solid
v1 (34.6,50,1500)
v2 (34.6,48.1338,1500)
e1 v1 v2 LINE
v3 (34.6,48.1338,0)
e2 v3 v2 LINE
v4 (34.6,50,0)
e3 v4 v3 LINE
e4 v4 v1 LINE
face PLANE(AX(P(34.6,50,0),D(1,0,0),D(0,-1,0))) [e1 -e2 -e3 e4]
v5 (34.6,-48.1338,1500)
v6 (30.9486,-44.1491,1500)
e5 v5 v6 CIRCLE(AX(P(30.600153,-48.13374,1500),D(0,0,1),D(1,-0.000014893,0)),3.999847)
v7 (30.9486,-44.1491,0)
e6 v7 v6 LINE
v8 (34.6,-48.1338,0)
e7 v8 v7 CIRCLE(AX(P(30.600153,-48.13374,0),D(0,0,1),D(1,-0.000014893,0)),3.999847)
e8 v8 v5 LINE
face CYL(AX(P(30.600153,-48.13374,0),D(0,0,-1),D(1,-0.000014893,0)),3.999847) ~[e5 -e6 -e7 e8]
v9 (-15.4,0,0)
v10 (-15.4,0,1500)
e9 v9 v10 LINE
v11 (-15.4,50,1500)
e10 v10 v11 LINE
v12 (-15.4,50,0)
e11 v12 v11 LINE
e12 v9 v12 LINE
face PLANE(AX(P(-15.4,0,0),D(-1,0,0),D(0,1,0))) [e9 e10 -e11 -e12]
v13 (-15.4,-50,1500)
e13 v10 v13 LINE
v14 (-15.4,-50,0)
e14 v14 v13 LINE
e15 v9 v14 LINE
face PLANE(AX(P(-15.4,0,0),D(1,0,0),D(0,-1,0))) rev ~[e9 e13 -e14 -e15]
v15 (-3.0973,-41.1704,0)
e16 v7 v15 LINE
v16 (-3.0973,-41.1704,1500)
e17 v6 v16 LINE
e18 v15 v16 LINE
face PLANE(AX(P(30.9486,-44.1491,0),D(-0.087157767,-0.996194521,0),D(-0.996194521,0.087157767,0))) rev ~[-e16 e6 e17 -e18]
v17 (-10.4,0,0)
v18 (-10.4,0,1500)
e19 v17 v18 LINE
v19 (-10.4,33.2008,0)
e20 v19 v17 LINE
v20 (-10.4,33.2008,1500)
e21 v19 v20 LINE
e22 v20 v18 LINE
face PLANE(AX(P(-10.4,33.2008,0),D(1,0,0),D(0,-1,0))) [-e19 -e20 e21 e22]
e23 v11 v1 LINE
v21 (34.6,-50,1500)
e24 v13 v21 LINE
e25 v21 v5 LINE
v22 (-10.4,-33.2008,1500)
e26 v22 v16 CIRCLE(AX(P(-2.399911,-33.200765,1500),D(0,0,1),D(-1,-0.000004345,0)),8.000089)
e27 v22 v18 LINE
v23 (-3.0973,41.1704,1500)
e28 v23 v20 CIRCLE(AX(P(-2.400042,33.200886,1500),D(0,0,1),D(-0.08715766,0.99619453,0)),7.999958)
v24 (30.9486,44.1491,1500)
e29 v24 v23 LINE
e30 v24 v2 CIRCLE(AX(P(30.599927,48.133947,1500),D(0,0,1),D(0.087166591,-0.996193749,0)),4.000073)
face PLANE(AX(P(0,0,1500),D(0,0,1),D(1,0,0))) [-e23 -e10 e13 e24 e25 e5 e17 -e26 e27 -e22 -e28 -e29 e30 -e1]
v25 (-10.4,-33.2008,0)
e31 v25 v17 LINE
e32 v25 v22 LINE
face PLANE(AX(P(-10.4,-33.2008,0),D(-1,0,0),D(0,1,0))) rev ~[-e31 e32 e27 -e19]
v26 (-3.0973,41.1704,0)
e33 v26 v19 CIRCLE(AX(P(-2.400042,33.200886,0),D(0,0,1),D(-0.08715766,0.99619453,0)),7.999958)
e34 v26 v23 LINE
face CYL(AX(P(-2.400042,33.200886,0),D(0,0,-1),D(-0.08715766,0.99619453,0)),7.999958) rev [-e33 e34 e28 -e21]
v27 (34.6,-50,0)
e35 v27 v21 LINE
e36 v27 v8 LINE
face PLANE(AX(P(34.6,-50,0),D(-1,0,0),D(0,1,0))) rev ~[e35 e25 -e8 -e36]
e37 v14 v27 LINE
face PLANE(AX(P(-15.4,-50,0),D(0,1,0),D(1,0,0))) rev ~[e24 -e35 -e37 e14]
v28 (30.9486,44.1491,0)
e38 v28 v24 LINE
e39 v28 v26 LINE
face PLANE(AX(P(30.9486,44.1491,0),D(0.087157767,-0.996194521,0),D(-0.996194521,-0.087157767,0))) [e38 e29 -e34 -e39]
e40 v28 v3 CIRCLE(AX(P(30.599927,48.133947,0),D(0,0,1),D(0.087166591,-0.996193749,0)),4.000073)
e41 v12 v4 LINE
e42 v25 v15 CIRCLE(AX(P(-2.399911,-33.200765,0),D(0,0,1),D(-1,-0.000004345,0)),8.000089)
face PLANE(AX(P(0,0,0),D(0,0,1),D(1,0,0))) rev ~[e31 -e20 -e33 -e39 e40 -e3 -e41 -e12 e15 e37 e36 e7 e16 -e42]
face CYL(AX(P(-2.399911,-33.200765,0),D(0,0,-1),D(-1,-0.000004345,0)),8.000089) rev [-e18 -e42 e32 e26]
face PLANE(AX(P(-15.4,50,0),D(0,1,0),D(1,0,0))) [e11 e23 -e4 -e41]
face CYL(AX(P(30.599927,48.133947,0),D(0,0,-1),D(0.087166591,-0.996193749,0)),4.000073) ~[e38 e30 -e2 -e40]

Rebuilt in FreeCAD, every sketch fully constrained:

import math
import FreeCAD as App
import Part
import Sketcher
from FreeCAD import Vector
Q = App.Units.Quantity

doc = App.newDocument("Part")
body = doc.addObject("PartDesign::Body", "Body")

# Sketch on XY plane
sketch1 = doc.addObject("Sketcher::SketchObject", "Sketch")
body.addObject(sketch1)
sketch1.AttachmentSupport = (doc.XY_Plane, [""])
sketch1.MapMode = "FlatFace"
sketch1.addGeometry([
    Part.LineSegment(Vector(-15.4, 50, 0), Vector(-15.4, -50, 0)),  # 0
    Part.LineSegment(Vector(-15.4, -50, 0), Vector(34.6, -50, 0)),  # 1
    Part.LineSegment(Vector(34.6, -50, 0), Vector(34.6, -48.1, 0)),  # 2
    Part.ArcOfCircle(Part.Circle(Vector(30.6, -48.1, 0), Vector(0, 0, 1), 4), math.radians(0), math.radians(85)),  # 3
    Part.LineSegment(Vector(30.9, -44.1, 0), Vector(-3.1, -41.2, 0)),  # 4
    Part.ArcOfCircle(Part.Circle(Vector(-2.4, -33.2, 0), Vector(0, 0, 1), 8), math.radians(180), math.radians(265)),  # 5
    Part.LineSegment(Vector(-10.4, -33.2, 0), Vector(-10.4, 33.2, 0)),  # 6
    Part.ArcOfCircle(Part.Circle(Vector(-2.4, 33.2, 0), Vector(0, 0, 1), 8), math.radians(95), math.radians(180)),  # 7
    Part.LineSegment(Vector(-3.1, 41.2, 0), Vector(30.9, 44.1, 0)),  # 8
    Part.ArcOfCircle(Part.Circle(Vector(30.6, 48.1, 0), Vector(0, 0, 1), 4), math.radians(-85), math.radians(0)),  # 9
    Part.LineSegment(Vector(34.6, 48.1, 0), Vector(34.6, 50, 0)),  # 10
    Part.LineSegment(Vector(34.6, 50, 0), Vector(-15.4, 50, 0)),  # 11
], False)
sketch1.addConstraint([
    Sketcher.Constraint("Coincident", 0, 2, 1, 1),
    Sketcher.Constraint("Coincident", 1, 2, 2, 1),
    Sketcher.Constraint("Tangent", 2, 2, 3, 1),
    Sketcher.Constraint("Tangent", 3, 2, 4, 1),
    Sketcher.Constraint("Tangent", 4, 2, 5, 2),
    Sketcher.Constraint("Tangent", 5, 1, 6, 1),
    Sketcher.Constraint("Tangent", 6, 2, 7, 2),
    Sketcher.Constraint("Tangent", 7, 1, 8, 1),
    Sketcher.Constraint("Tangent", 8, 2, 9, 1),
    Sketcher.Constraint("Tangent", 9, 2, 10, 1),
    Sketcher.Constraint("Coincident", 10, 2, 11, 1),
    Sketcher.Constraint("Coincident", 11, 2, 0, 1),
    Sketcher.Constraint("Vertical", 0),
    Sketcher.Constraint("Horizontal", 1),
    Sketcher.Constraint("Vertical", 2),
    Sketcher.Constraint("Vertical", 6),
    Sketcher.Constraint("Vertical", 10),
    Sketcher.Constraint("Horizontal", 11),
    Sketcher.Constraint("Equal", 5, 7),
    Sketcher.Constraint("Equal", 3, 9),
    Sketcher.Constraint("Symmetric", 3, 3, 9, 3, -1),
    Sketcher.Constraint("Vertical", 4, 2, 7, 1),
    Sketcher.Constraint("Equal", 2, 10),
    Sketcher.Constraint("Radius", 3, 4.0),
    Sketcher.Constraint("Radius", 5, 8.0),
    Sketcher.Constraint("DistanceX", 1, 1, 1, 2, 50.0),
    Sketcher.Constraint("Angle", 8, Q("5 deg")),
    Sketcher.Constraint("DistanceY", 0, 2, -1, 1, 50.0),
    Sketcher.Constraint("DistanceX", 0, 2, 5, 1, 5.0),
    Sketcher.Constraint("DistanceX", 0, 2, -1, 1, 15.4),
    Sketcher.Constraint("DistanceY", 5, 3, 8, 2, 77.35),
])
pad1 = doc.addObject("PartDesign::Pad", "Pad")
body.addObject(pad1)
pad1.Profile = sketch1
pad1.Length = 1500

doc.recompute()
